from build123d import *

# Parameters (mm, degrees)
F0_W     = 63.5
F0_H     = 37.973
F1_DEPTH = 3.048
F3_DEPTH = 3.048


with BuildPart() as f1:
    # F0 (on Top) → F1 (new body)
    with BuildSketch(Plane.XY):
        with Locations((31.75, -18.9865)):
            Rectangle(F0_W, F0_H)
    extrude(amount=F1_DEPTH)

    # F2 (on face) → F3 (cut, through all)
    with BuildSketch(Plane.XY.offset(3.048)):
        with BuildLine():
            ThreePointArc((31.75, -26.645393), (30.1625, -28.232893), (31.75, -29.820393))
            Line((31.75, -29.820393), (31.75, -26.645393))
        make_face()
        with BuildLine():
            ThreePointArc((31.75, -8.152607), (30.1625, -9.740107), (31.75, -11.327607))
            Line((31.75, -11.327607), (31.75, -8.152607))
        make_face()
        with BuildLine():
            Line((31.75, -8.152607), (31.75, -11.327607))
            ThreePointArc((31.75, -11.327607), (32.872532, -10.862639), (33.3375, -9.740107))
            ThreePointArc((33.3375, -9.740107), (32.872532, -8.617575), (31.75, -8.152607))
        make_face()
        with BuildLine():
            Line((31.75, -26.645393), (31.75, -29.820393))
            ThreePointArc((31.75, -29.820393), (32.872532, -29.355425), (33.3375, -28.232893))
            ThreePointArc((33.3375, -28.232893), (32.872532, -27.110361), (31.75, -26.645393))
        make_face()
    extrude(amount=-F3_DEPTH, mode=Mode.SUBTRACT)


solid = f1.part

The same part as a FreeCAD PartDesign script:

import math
import FreeCAD as App
import Part
import Sketcher
Q = App.Units.Quantity

doc = App.newDocument("Part")
params = doc.addObject("Spreadsheet::Sheet", "Params")
for row, (alias, value) in enumerate([
    ("sketch1_width", "2.5 in"),
    ("sketch1_height", "1.495 in"),
    ("pad1_length", "0.12 in"),
    ("sketch2_radius", "0.0625 in"),
], start=1):
    params.set(f"A{row}", alias)
    params.set(f"B{row}", "=" + value)
    params.setAlias(f"B{row}", alias)

body = doc.addObject("PartDesign::Body", "Body")

# Sketch on XY plane
sketch1 = body.newObject("Sketcher::SketchObject", "Sketch")
sketch1.AttachmentSupport = (doc.getObject("XY_Plane"), [""])
sketch1.MapMode = "FlatFace"
sketch1.addGeometry([
    Part.LineSegment(App.Vector(0, 0, 0), App.Vector(0, -38, 0)),
    Part.LineSegment(App.Vector(0, -38, 0), App.Vector(64, -38, 0)),
    Part.LineSegment(App.Vector(64, -38, 0), App.Vector(64, 0, 0)),
    Part.LineSegment(App.Vector(64, 0, 0), App.Vector(0, 0, 0)),
], False)
sketch1.addConstraint([
    Sketcher.Constraint("Coincident", 0, 2, 1, 1),
    Sketcher.Constraint("Coincident", 1, 2, 2, 1),
    Sketcher.Constraint("Coincident", 2, 2, 3, 1),
    Sketcher.Constraint("Coincident", 3, 2, 0, 1),
    Sketcher.Constraint("Vertical", 0),
    Sketcher.Constraint("Horizontal", 1),
    Sketcher.Constraint("Vertical", 2),
    Sketcher.Constraint("Horizontal", 3),
    Sketcher.Constraint("Coincident", 3, 2, -1, 1),
    Sketcher.Constraint("DistanceX", 1, 1, 1, 2, Q("2.5 in")),
    Sketcher.Constraint("DistanceY", 0, 2, 0, 1, Q("1.495 in")),
])
sketch1.setExpression("Constraints[9]", "Params.sketch1_width")
sketch1.setExpression("Constraints[10]", "Params.sketch1_height")
pad1 = body.newObject("PartDesign::Pad", "Pad")
pad1.Profile = sketch1
pad1.setExpression("Length", "Params.pad1_length")

# Sketch on XY plane
sketch2 = body.newObject("Sketcher::SketchObject", "Sketch001")
sketch2.AttachmentSupport = (doc.getObject("XY_Plane"), [""])
sketch2.MapMode = "FlatFace"
sketch2.AttachmentOffset = App.Placement(App.Vector(0, 0, 0.12 * 25.4), App.Rotation())
sketch2.addGeometry([
    Part.ArcOfCircle(Part.Circle(App.Vector(31.8, -28.2, 0), App.Vector(0, 0, 1), 1.6), math.radians(90), math.radians(270)),  # 0
    Part.ArcOfCircle(Part.Circle(App.Vector(31.7, -28.2, 0), App.Vector(0, 0, 1), 1.6), math.radians(-90), math.radians(0)),  # 1
    Part.ArcOfCircle(Part.Circle(App.Vector(31.7, -28.2, 0), App.Vector(0, 0, 1), 1.6), math.radians(0), math.radians(90)),  # 2
    Part.ArcOfCircle(Part.Circle(App.Vector(31.8, -9.7, 0), App.Vector(0, 0, 1), 1.6), math.radians(90), math.radians(270)),  # 3
    Part.ArcOfCircle(Part.Circle(App.Vector(31.7, -9.7, 0), App.Vector(0, 0, 1), 1.6), math.radians(-90), math.radians(0)),  # 4
    Part.ArcOfCircle(Part.Circle(App.Vector(31.7, -9.7, 0), App.Vector(0, 0, 1), 1.6), math.radians(0), math.radians(90)),  # 5
], False)
sketch2.addConstraint([
    Sketcher.Constraint("Tangent", 0, 2, 1, 1),
    Sketcher.Constraint("Tangent", 1, 2, 2, 1),
    Sketcher.Constraint("Tangent", 2, 2, 0, 1),
    Sketcher.Constraint("Tangent", 3, 2, 4, 1),
    Sketcher.Constraint("Tangent", 4, 2, 5, 1),
    Sketcher.Constraint("Tangent", 5, 2, 3, 1),
    Sketcher.Constraint("Equal", 2, 3),
    Sketcher.Constraint("Horizontal", 2, 3, 1, 2),
    Sketcher.Constraint("Horizontal", 5, 3, 4, 2),
    Sketcher.Constraint("Vertical", 2, 3, 3, 3),
    Sketcher.Constraint("Vertical", 5, 3, 0, 2),
    Sketcher.Constraint("Vertical", 0, 2, 2, 2),
    Sketcher.Constraint("Vertical", 2, 2, 3, 2),
    Sketcher.Constraint("Vertical", 3, 2, 5, 2),
    Sketcher.Constraint("Radius", 0, Q("0.0625 in")),
    Sketcher.Constraint("DistanceX", -1, 1, 0, 3, Q("1.25 in")),
    Sketcher.Constraint("DistanceY", 0, 3, -1, 1, 28.232893),
    Sketcher.Constraint("DistanceY", 3, 3, -1, 1, 9.740107),
])
sketch2.setExpression("Constraints[14]", "Params.sketch2_radius")
pocket1 = body.newObject("PartDesign::Pocket", "Pocket")
pocket1.Profile = sketch2
pocket1.Type = "ThroughAll"

doc.recompute()
